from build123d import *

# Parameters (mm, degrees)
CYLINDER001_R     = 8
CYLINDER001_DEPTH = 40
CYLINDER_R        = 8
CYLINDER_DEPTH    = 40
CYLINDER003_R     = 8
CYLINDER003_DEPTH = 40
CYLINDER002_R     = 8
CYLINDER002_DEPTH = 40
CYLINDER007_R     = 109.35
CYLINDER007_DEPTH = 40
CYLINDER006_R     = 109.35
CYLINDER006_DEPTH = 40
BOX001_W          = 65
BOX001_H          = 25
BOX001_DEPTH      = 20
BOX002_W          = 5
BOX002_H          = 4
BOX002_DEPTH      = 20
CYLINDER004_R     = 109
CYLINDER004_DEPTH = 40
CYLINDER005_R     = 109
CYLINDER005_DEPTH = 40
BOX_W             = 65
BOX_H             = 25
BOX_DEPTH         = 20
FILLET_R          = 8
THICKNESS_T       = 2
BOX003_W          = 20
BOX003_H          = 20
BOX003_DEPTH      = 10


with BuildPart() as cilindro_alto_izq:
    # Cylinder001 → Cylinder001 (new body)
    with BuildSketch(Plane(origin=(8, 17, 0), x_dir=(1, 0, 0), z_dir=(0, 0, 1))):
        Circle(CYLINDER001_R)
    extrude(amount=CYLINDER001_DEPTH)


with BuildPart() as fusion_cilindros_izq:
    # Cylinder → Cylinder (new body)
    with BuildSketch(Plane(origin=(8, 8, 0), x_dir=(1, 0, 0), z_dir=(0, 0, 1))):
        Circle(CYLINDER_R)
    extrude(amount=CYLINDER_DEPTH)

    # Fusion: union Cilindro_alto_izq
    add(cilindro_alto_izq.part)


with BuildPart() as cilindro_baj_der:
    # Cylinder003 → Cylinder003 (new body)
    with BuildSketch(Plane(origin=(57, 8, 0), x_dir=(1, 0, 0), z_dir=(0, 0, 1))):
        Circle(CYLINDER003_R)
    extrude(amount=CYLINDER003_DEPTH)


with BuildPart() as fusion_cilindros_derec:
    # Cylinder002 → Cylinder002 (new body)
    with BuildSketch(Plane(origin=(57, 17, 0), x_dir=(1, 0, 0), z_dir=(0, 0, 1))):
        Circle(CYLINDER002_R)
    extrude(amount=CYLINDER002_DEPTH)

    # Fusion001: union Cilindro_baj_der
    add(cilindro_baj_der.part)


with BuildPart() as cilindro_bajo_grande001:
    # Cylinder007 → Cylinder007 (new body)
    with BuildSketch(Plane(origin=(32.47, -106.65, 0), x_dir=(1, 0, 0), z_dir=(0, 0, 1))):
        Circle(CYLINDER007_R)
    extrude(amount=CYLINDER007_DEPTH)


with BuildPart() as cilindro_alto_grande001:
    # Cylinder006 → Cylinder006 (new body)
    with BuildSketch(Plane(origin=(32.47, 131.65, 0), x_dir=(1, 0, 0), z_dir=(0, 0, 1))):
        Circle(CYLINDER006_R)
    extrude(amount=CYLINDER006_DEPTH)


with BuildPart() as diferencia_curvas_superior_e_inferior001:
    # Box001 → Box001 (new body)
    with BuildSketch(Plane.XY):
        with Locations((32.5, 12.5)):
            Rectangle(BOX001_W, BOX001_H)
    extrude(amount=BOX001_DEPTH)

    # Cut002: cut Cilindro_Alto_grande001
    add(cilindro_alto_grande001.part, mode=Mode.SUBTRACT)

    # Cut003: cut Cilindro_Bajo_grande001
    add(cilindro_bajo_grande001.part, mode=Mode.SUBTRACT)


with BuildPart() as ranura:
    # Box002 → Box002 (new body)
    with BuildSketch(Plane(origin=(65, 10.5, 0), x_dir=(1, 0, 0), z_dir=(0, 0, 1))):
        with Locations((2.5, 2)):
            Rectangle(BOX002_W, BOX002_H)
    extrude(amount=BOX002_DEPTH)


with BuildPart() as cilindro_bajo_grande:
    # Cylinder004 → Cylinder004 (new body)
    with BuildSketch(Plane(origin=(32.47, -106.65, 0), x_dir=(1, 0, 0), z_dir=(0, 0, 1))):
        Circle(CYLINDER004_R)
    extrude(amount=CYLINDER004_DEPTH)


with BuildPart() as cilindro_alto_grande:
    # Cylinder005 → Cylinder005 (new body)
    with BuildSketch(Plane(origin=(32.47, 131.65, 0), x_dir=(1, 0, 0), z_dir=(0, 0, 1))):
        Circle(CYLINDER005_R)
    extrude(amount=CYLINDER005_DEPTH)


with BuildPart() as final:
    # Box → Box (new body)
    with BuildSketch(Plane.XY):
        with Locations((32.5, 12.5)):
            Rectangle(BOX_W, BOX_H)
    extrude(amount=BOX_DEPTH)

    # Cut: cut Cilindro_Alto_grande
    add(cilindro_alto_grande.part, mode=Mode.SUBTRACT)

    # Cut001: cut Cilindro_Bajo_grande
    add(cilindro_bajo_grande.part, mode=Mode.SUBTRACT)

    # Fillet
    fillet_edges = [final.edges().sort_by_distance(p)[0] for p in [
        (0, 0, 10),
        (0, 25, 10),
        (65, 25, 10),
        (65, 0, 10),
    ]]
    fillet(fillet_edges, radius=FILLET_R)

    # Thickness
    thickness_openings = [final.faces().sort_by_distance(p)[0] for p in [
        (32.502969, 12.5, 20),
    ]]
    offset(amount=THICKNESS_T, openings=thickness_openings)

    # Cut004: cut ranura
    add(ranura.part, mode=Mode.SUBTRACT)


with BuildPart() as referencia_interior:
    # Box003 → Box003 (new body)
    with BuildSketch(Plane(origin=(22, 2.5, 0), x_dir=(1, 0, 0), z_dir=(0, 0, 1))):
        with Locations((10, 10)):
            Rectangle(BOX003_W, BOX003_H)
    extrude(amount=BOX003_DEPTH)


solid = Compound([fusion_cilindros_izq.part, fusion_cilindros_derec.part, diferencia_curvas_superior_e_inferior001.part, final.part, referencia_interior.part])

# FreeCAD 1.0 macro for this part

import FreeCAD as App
import Part
import Sketcher


def edges_at(feature, points):
    """Names of the edges that pass closest to the given points."""
    edges = feature.Shape.Edges
    near = lambda p: min(range(len(edges)), key=lambda i: edges[i].distToShape(Part.Vertex(*p))[0])
    return sorted({f"Edge{near(p) + 1}" for p in points})


def faces_at(feature, points):
    """Names of the faces that lie closest to the given points."""
    faces = feature.Shape.Faces
    near = lambda p: min(range(len(faces)), key=lambda i: faces[i].distToShape(Part.Vertex(*p))[0])
    return sorted({f"Face{near(p) + 1}" for p in points})


def add_polygon(sketch, points):
    """Adds a closed chain of lines whose ends are joined by coincident constraints."""
    first, n = sketch.GeometryCount, len(points)
    for a, b in zip(points, points[1:] + points[:1]):
        sketch.addGeometry(Part.LineSegment(App.Vector(*a, 0), App.Vector(*b, 0)), False)
    for i in range(n):
        sketch.addConstraint(Sketcher.Constraint("Coincident", first + i, 2, first + (i + 1) % n, 1))

doc = App.newDocument("Part")
body = doc.addObject("PartDesign::Body", "Body")

sketch1 = body.newObject("Sketcher::SketchObject", "Sketch")
sketch1.AttachmentSupport = (doc.getObject("XY_Plane"), [""])
sketch1.MapMode = "FlatFace"
sketch1.addGeometry(Part.Circle(App.Vector(8, 17, 0), App.Vector(0, 0, 1), 8), False)
sketch1.addConstraint([
    Sketcher.Constraint("Diameter", 0, 16.0),
    Sketcher.Constraint("DistanceX", -1, 1, 0, 3, 8.0),
    Sketcher.Constraint("DistanceY", -1, 1, 0, 3, 17.0),
])
pad1 = body.newObject("PartDesign::Pad", "Pad")
pad1.Profile = sketch1
pad1.Length = 40
body2 = doc.addObject("PartDesign::Body", "Body001")

sketch2 = body2.newObject("Sketcher::SketchObject", "Sketch001")
sketch2.AttachmentSupport = (doc.getObject("XY_Plane001"), [""])
sketch2.MapMode = "FlatFace"
sketch2.addGeometry(Part.Circle(App.Vector(8, 8, 0), App.Vector(0, 0, 1), 8), False)
sketch2.addConstraint([
    Sketcher.Constraint("Diameter", 0, 16.0),
    Sketcher.Constraint("DistanceX", -1, 1, 0, 3, 8.0),
    Sketcher.Constraint("DistanceY", -1, 1, 0, 3, 8.0),
])
pad2 = body2.newObject("PartDesign::Pad", "Pad001")
pad2.Profile = sketch2
pad2.Length = 40
doc.recompute()

boolean = body2.newObject("PartDesign::Boolean", "Boolean")
boolean.Type = "Fuse"
boolean.addObjects([body])
body3 = doc.addObject("PartDesign::Body", "Body002")

sketch3 = body3.newObject("Sketcher::SketchObject", "Sketch002")
sketch3.AttachmentSupport = (doc.getObject("XY_Plane002"), [""])
sketch3.MapMode = "FlatFace"
sketch3.addGeometry(Part.Circle(App.Vector(57, 8, 0), App.Vector(0, 0, 1), 8), False)
sketch3.addConstraint([
    Sketcher.Constraint("Diameter", 0, 16.0),
    Sketcher.Constraint("DistanceX", -1, 1, 0, 3, 57.0),
    Sketcher.Constraint("DistanceY", -1, 1, 0, 3, 8.0),
])
pad3 = body3.newObject("PartDesign::Pad", "Pad002")
pad3.Profile = sketch3
pad3.Length = 40
body4 = doc.addObject("PartDesign::Body", "Body003")

sketch4 = body4.newObject("Sketcher::SketchObject", "Sketch003")
sketch4.AttachmentSupport = (doc.getObject("XY_Plane003"), [""])
sketch4.MapMode = "FlatFace"
sketch4.addGeometry(Part.Circle(App.Vector(57, 17, 0), App.Vector(0, 0, 1), 8), False)
sketch4.addConstraint([
    Sketcher.Constraint("Diameter", 0, 16.0),
    Sketcher.Constraint("DistanceX", -1, 1, 0, 3, 57.0),
    Sketcher.Constraint("DistanceY", -1, 1, 0, 3, 17.0),
])
pad4 = body4.newObject("PartDesign::Pad", "Pad003")
pad4.Profile = sketch4
pad4.Length = 40
doc.recompute()

boolean2 = body4.newObject("PartDesign::Boolean", "Boolean001")
boolean2.Type = "Fuse"
boolean2.addObjects([body3])
body5 = doc.addObject("PartDesign::Body", "Body004")

sketch5 = body5.newObject("Sketcher::SketchObject", "Sketch004")
sketch5.AttachmentSupport = (doc.getObject("XY_Plane004"), [""])
sketch5.MapMode = "FlatFace"
sketch5.addGeometry(Part.Circle(App.Vector(32, -107, 0), App.Vector(0, 0, 1), 109), False)
sketch5.addConstraint([
    Sketcher.Constraint("Diameter", 0, 218.7),
    Sketcher.Constraint("DistanceX", -1, 1, 0, 3, 32.47),
    Sketcher.Constraint("DistanceY", 0, 3, -1, 1, 106.65),
])
pad5 = body5.newObject("PartDesign::Pad", "Pad004")
pad5.Profile = sketch5
pad5.Length = 40
body6 = doc.addObject("PartDesign::Body", "Body005")

sketch6 = body6.newObject("Sketcher::SketchObject", "Sketch005")
sketch6.AttachmentSupport = (doc.getObject("XY_Plane005"), [""])
sketch6.MapMode = "FlatFace"
sketch6.addGeometry(Part.Circle(App.Vector(32, 132, 0), App.Vector(0, 0, 1), 109), False)
sketch6.addConstraint([
    Sketcher.Constraint("Diameter", 0, 218.7),
    Sketcher.Constraint("DistanceX", -1, 1, 0, 3, 32.47),
    Sketcher.Constraint("DistanceY", -1, 1, 0, 3, 131.65),
])
pad6 = body6.newObject("PartDesign::Pad", "Pad005")
pad6.Profile = sketch6
pad6.Length = 40
body7 = doc.addObject("PartDesign::Body", "Body006")

sketch7 = body7.newObject("Sketcher::SketchObject", "Sketch006")
sketch7.AttachmentSupport = (doc.getObject("XY_Plane006"), [""])
sketch7.MapMode = "FlatFace"
add_polygon(sketch7, [(0, 25), (0, 0), (65, 0), (65, 25)])
sketch7.addConstraint([
    Sketcher.Constraint("Vertical", 0),
    Sketcher.Constraint("Horizontal", 1),
    Sketcher.Constraint("Vertical", 2),
    Sketcher.Constraint("Horizontal", 3),
    Sketcher.Constraint("Coincident", 0, 2, -1, 1),
    Sketcher.Constraint("DistanceX", 1, 1, 1, 2, 65.0),
    Sketcher.Constraint("DistanceY", 0, 2, 0, 1, 25.0),
])
pad7 = body7.newObject("PartDesign::Pad", "Pad006")
pad7.Profile = sketch7
pad7.Length = 20
doc.recompute()

boolean3 = body7.newObject("PartDesign::Boolean", "Boolean002")
boolean3.Type = "Cut"
boolean3.addObjects([body6])
doc.recompute()

boolean4 = body7.newObject("PartDesign::Boolean", "Boolean003")
boolean4.Type = "Cut"
boolean4.addObjects([body5])
body8 = doc.addObject("PartDesign::Body", "Body007")

sketch8 = body8.newObject("Sketcher::SketchObject", "Sketch007")
sketch8.AttachmentSupport = (doc.getObject("XY_Plane007"), [""])
sketch8.MapMode = "FlatFace"
add_polygon(sketch8, [(65, 14.5), (65, 10.5), (70, 10.5), (70, 14.5)])
sketch8.addConstraint([
    Sketcher.Constraint("Vertical", 0),
    Sketcher.Constraint("Horizontal", 1),
    Sketcher.Constraint("Vertical", 2),
    Sketcher.Constraint("Horizontal", 3),
    Sketcher.Constraint("DistanceX", 1, 1, 1, 2, 5.0),
    Sketcher.Constraint("DistanceY", 0, 2, 0, 1, 4.0),
    Sketcher.Constraint("DistanceX", -1, 1, 0, 2, 65.0),
    Sketcher.Constraint("DistanceY", -1, 1, 0, 2, 10.5),
])
pad8 = body8.newObject("PartDesign::Pad", "Pad007")
pad8.Profile = sketch8
pad8.Length = 20
body9 = doc.addObject("PartDesign::Body", "Body008")

sketch9 = body9.newObject("Sketcher::SketchObject", "Sketch008")
sketch9.AttachmentSupport = (doc.getObject("XY_Plane008"), [""])
sketch9.MapMode = "FlatFace"
sketch9.addGeometry(Part.Circle(App.Vector(32, -107, 0), App.Vector(0, 0, 1), 109), False)
sketch9.addConstraint([
    Sketcher.Constraint("Diameter", 0, 218.0),
    Sketcher.Constraint("DistanceX", -1, 1, 0, 3, 32.47),
    Sketcher.Constraint("DistanceY", 0, 3, -1, 1, 106.65),
])
pad9 = body9.newObject("PartDesign::Pad", "Pad008")
pad9.Profile = sketch9
pad9.Length = 40
body10 = doc.addObject("PartDesign::Body", "Body009")

sketch10 = body10.newObject("Sketcher::SketchObject", "Sketch009")
sketch10.AttachmentSupport = (doc.getObject("XY_Plane009"), [""])
sketch10.MapMode = "FlatFace"
sketch10.addGeometry(Part.Circle(App.Vector(32, 132, 0), App.Vector(0, 0, 1), 109), False)
sketch10.addConstraint([
    Sketcher.Constraint("Diameter", 0, 218.0),
    Sketcher.Constraint("DistanceX", -1, 1, 0, 3, 32.47),
    Sketcher.Constraint("DistanceY", -1, 1, 0, 3, 131.65),
])
pad10 = body10.newObject("PartDesign::Pad", "Pad009")
pad10.Profile = sketch10
pad10.Length = 40
body11 = doc.addObject("PartDesign::Body", "Body010")

sketch11 = body11.newObject("Sketcher::SketchObject", "Sketch010")
sketch11.AttachmentSupport = (doc.getObject("XY_Plane010"), [""])
sketch11.MapMode = "FlatFace"
add_polygon(sketch11, [(0, 25), (0, 0), (65, 0), (65, 25)])
sketch11.addConstraint([
    Sketcher.Constraint("Vertical", 0),
    Sketcher.Constraint("Horizontal", 1),
    Sketcher.Constraint("Vertical", 2),
    Sketcher.Constraint("Horizontal", 3),
    Sketcher.Constraint("Coincident", 0, 2, -1, 1),
    Sketcher.Constraint("DistanceX", 1, 1, 1, 2, 65.0),
    Sketcher.Constraint("DistanceY", 0, 2, 0, 1, 25.0),
])
pad11 = body11.newObject("PartDesign::Pad", "Pad010")
pad11.Profile = sketch11
pad11.Length = 20
doc.recompute()

boolean5 = body11.newObject("PartDesign::Boolean", "Boolean004")
boolean5.Type = "Cut"
boolean5.addObjects([body10])
doc.recompute()

boolean6 = body11.newObject("PartDesign::Boolean", "Boolean005")
boolean6.Type = "Cut"
boolean6.addObjects([body9])
doc.recompute()

fillet = body11.newObject("PartDesign::Fillet", "Fillet")
fillet.Base = (boolean6, edges_at(boolean6, [
    (0, 0, 10),
    (0, 25, 10),
    (65, 25, 10),
    (65, 0, 10),
]))
fillet.Radius = 8
doc.recompute()

thickness = body11.newObject("PartDesign::Thickness", "Thickness")
thickness.Base = (fillet, faces_at(fillet, [(32.5, 12.5, 20)]))
thickness.Value = 2
thickness.Reversed = False
thickness.Join = "Arc"
doc.recompute()

boolean7 = body11.newObject("PartDesign::Boolean", "Boolean006")
boolean7.Type = "Cut"
boolean7.addObjects([body8])
body12 = doc.addObject("PartDesign::Body", "Body011")

sketch12 = body12.newObject("Sketcher::SketchObject", "Sketch011")
sketch12.AttachmentSupport = (doc.getObject("XY_Plane011"), [""])
sketch12.MapMode = "FlatFace"
add_polygon(sketch12, [(22, 22), (22, 2), (42, 2), (42, 22)])
sketch12.addConstraint([
    Sketcher.Constraint("Vertical", 0),
    Sketcher.Constraint("Horizontal", 1),
    Sketcher.Constraint("Vertical", 2),
    Sketcher.Constraint("Horizontal", 3),
    Sketcher.Constraint("Equal", 3, 0),
    Sketcher.Constraint("DistanceX", 1, 1, 1, 2, 20.0),
    Sketcher.Constraint("DistanceX", -1, 1, 0, 2, 22.0),
    Sketcher.Constraint("DistanceY", -1, 1, 0, 2, 2.5),
])
pad12 = body12.newObject("PartDesign::Pad", "Pad011")
pad12.Profile = sketch12
pad12.Length = 10

doc.recompute()
